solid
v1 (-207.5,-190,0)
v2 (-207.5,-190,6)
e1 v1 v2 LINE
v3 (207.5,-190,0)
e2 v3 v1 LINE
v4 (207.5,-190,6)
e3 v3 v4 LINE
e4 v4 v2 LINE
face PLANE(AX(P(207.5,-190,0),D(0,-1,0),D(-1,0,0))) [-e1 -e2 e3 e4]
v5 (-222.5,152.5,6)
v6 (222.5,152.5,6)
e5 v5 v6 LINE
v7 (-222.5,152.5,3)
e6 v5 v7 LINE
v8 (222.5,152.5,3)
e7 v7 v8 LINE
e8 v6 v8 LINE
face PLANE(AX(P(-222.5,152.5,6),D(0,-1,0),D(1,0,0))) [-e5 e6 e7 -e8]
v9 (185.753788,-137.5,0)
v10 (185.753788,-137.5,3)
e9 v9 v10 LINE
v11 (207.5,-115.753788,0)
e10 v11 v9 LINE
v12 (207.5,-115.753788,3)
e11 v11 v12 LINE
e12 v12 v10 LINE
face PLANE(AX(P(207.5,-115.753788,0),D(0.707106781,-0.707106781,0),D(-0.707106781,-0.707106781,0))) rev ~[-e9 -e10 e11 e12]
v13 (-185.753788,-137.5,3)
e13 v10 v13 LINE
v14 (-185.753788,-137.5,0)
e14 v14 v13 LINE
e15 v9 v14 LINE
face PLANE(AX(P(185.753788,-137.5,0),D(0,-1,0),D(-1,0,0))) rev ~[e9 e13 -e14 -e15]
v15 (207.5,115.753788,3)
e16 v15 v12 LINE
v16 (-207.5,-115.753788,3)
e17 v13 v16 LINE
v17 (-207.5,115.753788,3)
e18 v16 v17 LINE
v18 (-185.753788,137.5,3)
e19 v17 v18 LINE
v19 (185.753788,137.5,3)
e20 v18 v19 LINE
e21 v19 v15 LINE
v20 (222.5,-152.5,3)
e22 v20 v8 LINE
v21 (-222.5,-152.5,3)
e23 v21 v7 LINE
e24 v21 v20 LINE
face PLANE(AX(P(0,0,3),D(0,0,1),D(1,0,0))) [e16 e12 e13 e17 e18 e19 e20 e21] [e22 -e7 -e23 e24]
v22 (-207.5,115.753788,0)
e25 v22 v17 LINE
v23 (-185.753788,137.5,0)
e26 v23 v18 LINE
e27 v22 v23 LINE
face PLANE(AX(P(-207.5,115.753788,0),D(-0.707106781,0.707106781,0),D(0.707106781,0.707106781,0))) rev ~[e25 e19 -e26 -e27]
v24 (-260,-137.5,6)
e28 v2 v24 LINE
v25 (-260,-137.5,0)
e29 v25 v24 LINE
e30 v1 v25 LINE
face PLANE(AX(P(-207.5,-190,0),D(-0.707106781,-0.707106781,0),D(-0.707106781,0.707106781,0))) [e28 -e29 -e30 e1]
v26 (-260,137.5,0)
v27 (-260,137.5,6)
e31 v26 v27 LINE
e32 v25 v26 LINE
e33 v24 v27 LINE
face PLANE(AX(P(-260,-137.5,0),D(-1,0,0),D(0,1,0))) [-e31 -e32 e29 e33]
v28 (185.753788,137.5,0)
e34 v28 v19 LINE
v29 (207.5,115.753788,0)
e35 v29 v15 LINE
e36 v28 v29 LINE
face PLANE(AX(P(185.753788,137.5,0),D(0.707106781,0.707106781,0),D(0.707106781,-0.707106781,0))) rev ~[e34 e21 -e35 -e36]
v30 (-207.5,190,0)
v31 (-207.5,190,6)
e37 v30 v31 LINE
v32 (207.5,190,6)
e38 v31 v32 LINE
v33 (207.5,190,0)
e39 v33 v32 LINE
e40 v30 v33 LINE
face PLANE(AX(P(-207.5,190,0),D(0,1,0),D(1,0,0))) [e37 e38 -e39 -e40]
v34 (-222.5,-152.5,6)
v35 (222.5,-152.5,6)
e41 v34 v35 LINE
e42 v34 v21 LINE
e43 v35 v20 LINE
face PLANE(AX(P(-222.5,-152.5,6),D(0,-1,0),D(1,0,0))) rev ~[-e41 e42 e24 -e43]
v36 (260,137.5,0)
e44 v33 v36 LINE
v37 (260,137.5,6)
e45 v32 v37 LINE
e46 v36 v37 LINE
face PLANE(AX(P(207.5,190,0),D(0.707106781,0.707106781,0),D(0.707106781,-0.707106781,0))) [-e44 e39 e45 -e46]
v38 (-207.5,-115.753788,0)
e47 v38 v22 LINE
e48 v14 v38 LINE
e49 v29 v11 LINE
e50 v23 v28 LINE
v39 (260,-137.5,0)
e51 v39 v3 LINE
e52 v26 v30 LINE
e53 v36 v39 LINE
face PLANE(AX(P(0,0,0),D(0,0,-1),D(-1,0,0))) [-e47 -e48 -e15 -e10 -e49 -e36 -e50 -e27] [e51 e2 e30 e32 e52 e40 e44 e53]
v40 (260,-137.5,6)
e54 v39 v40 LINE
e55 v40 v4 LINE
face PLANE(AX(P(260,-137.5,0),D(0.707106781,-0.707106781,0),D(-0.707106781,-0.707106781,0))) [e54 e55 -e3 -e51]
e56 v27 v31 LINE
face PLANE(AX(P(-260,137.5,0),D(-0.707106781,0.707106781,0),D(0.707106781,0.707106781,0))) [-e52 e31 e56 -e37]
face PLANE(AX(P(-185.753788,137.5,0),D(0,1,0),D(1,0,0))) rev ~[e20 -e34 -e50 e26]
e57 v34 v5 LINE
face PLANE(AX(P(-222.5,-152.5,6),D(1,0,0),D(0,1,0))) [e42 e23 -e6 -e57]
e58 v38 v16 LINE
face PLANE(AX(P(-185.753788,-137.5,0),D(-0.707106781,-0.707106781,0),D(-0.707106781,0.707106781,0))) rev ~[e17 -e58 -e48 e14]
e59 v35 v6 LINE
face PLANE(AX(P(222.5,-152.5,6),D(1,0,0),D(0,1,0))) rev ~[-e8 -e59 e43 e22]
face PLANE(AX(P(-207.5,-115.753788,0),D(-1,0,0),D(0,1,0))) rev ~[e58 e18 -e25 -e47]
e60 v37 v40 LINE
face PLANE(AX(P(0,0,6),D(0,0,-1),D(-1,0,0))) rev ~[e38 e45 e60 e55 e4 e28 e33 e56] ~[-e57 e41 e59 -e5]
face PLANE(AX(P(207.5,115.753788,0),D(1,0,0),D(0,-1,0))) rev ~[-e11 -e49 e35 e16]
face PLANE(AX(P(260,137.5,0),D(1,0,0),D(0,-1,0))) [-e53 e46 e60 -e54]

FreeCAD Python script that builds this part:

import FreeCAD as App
import Part
import Sketcher
Q = App.Units.Quantity

doc = App.newDocument("Part")
body = doc.addObject("PartDesign::Body", "Body")

sketch1 = body.newObject("Sketcher::SketchObject", "Sketch")
sketch1.AttachmentSupport = (doc.getObject("XY_Plane"), [""])
sketch1.MapMode = "FlatFace"
sketch1.addGeometry([
    Part.LineSegment(App.Vector(208, 190, 0), App.Vector(-208, 190, 0)),
    Part.LineSegment(App.Vector(-208, 190, 0), App.Vector(-260, 138, 0)),
    Part.LineSegment(App.Vector(-260, 138, 0), App.Vector(-260, -138, 0)),
    Part.LineSegment(App.Vector(-260, -138, 0), App.Vector(-208, -190, 0)),
    Part.LineSegment(App.Vector(-208, -190, 0), App.Vector(208, -190, 0)),
    Part.LineSegment(App.Vector(208, -190, 0), App.Vector(260, -138, 0)),
    Part.LineSegment(App.Vector(260, -138, 0), App.Vector(260, 138, 0)),
    Part.LineSegment(App.Vector(260, 138, 0), App.Vector(208, 190, 0)),
    Part.LineSegment(App.Vector(-208, -116, 0), App.Vector(-208, 116, 0)),
    Part.LineSegment(App.Vector(-208, 116, 0), App.Vector(-186, 138, 0)),
    Part.LineSegment(App.Vector(-186, 138, 0), App.Vector(186, 138, 0)),
    Part.LineSegment(App.Vector(186, 138, 0), App.Vector(208, 116, 0)),
    Part.LineSegment(App.Vector(208, 116, 0), App.Vector(208, -116, 0)),
    Part.LineSegment(App.Vector(208, -116, 0), App.Vector(186, -138, 0)),
    Part.LineSegment(App.Vector(186, -138, 0), App.Vector(-186, -138, 0)),
    Part.LineSegment(App.Vector(-186, -138, 0), App.Vector(-208, -116, 0)),
], False)
sketch1.addConstraint([
    Sketcher.Constraint("Coincident", 0, 2, 1, 1),
    Sketcher.Constraint("Coincident", 1, 2, 2, 1),
    Sketcher.Constraint("Coincident", 2, 2, 3, 1),
    Sketcher.Constraint("Coincident", 3, 2, 4, 1),
    Sketcher.Constraint("Coincident", 4, 2, 5, 1),
    Sketcher.Constraint("Coincident", 5, 2, 6, 1),
    Sketcher.Constraint("Coincident", 6, 2, 7, 1),
    Sketcher.Constraint("Coincident", 7, 2, 0, 1),
    Sketcher.Constraint("Coincident", 8, 2, 9, 1),
    Sketcher.Constraint("Coincident", 9, 2, 10, 1),
    Sketcher.Constraint("Coincident", 10, 2, 11, 1),
    Sketcher.Constraint("Coincident", 11, 2, 12, 1),
    Sketcher.Constraint("Coincident", 12, 2, 13, 1),
    Sketcher.Constraint("Coincident", 13, 2, 14, 1),
    Sketcher.Constraint("Coincident", 14, 2, 15, 1),
    Sketcher.Constraint("Coincident", 15, 2, 8, 1),
    Sketcher.Constraint("Horizontal", 0),
    Sketcher.Constraint("Vertical", 2),
    Sketcher.Constraint("Horizontal", 4),
    Sketcher.Constraint("Vertical", 6),
    Sketcher.Constraint("Vertical", 8),
    Sketcher.Constraint("Horizontal", 10),
    Sketcher.Constraint("Vertical", 12),
    Sketcher.Constraint("Horizontal", 14),
    Sketcher.Constraint("Symmetric", 0, 2, 4, 2, -1, 1),
    Sketcher.Constraint("Symmetric", 1, 2, 5, 2, -1, 1),
    Sketcher.Constraint("Symmetric", 8, 2, 12, 2, -1, 1),
    Sketcher.Constraint("Symmetric", 9, 2, 13, 2, -1, 1),
    Sketcher.Constraint("Perpendicular", 1, 3),
    Sketcher.Constraint("Perpendicular", 5, 7),
    Sketcher.Constraint("Perpendicular", 7, 9),
    Sketcher.Constraint("Perpendicular", 9, 11),
    Sketcher.Constraint("Perpendicular", 13, 15),
    Sketcher.Constraint("Horizontal", 2, 2, 5, 2),
    Sketcher.Constraint("Horizontal", 1, 2, 6, 2),
    Sketcher.Constraint("Horizontal", 6, 2, 9, 2),
    Sketcher.Constraint("Horizontal", 8, 2, 11, 2),
    Sketcher.Constraint("Horizontal", 12, 2, 15, 2),
    Sketcher.Constraint("Vertical", 0, 2, 3, 2),
    Sketcher.Constraint("Vertical", 3, 2, 8, 2),
    Sketcher.Constraint("DistanceX", 0, 2, 0, 1, Q("415 mm")),
    Sketcher.Constraint("DistanceY", 2, 2, 2, 1, Q("275 mm")),
    Sketcher.Constraint("DistanceY", -1, 1, 0, 2, Q("190 mm")),
    Sketcher.Constraint("DistanceX", 10, 1, 10, 2, Q("371.507576 mm")),
])
pad1 = body.newObject("PartDesign::Pad", "Pad")
pad1.Profile = sketch1
pad1.Length = 6

sketch2 = body.newObject("Sketcher::SketchObject", "Sketch001")
sketch2.AttachmentSupport = (doc.getObject("XY_Plane"), [""])
sketch2.MapMode = "FlatFace"
sketch2.AttachmentOffset = App.Placement(App.Vector(0, 0, 6), App.Rotation())
sketch2.addGeometry([
    Part.LineSegment(App.Vector(-222, 152, 0), App.Vector(-222, -152, 0)),
    Part.LineSegment(App.Vector(-222, -152, 0), App.Vector(222, -152, 0)),
    Part.LineSegment(App.Vector(222, -152, 0), App.Vector(222, 152, 0)),
    Part.LineSegment(App.Vector(222, 152, 0), App.Vector(-222, 152, 0)),
], False)
sketch2.addConstraint([
    Sketcher.Constraint("Coincident", 0, 2, 1, 1),
    Sketcher.Constraint("Coincident", 1, 2, 2, 1),
    Sketcher.Constraint("Coincident", 2, 2, 3, 1),
    Sketcher.Constraint("Coincident", 3, 2, 0, 1),
    Sketcher.Constraint("Vertical", 0),
    Sketcher.Constraint("Horizontal", 1),
    Sketcher.Constraint("Vertical", 2),
    Sketcher.Constraint("Horizontal", 3),
    Sketcher.Constraint("Symmetric", 0, 2, 2, 2, -1, 1),
    Sketcher.Constraint("DistanceX", 1, 1, 1, 2, Q("445 mm")),
    Sketcher.Constraint("DistanceY", 0, 2, 0, 1, Q("305 mm")),
])
pocket1 = body.newObject("PartDesign::Pocket", "Pocket")
pocket1.Profile = sketch2
pocket1.Length = 3

doc.recompute()
